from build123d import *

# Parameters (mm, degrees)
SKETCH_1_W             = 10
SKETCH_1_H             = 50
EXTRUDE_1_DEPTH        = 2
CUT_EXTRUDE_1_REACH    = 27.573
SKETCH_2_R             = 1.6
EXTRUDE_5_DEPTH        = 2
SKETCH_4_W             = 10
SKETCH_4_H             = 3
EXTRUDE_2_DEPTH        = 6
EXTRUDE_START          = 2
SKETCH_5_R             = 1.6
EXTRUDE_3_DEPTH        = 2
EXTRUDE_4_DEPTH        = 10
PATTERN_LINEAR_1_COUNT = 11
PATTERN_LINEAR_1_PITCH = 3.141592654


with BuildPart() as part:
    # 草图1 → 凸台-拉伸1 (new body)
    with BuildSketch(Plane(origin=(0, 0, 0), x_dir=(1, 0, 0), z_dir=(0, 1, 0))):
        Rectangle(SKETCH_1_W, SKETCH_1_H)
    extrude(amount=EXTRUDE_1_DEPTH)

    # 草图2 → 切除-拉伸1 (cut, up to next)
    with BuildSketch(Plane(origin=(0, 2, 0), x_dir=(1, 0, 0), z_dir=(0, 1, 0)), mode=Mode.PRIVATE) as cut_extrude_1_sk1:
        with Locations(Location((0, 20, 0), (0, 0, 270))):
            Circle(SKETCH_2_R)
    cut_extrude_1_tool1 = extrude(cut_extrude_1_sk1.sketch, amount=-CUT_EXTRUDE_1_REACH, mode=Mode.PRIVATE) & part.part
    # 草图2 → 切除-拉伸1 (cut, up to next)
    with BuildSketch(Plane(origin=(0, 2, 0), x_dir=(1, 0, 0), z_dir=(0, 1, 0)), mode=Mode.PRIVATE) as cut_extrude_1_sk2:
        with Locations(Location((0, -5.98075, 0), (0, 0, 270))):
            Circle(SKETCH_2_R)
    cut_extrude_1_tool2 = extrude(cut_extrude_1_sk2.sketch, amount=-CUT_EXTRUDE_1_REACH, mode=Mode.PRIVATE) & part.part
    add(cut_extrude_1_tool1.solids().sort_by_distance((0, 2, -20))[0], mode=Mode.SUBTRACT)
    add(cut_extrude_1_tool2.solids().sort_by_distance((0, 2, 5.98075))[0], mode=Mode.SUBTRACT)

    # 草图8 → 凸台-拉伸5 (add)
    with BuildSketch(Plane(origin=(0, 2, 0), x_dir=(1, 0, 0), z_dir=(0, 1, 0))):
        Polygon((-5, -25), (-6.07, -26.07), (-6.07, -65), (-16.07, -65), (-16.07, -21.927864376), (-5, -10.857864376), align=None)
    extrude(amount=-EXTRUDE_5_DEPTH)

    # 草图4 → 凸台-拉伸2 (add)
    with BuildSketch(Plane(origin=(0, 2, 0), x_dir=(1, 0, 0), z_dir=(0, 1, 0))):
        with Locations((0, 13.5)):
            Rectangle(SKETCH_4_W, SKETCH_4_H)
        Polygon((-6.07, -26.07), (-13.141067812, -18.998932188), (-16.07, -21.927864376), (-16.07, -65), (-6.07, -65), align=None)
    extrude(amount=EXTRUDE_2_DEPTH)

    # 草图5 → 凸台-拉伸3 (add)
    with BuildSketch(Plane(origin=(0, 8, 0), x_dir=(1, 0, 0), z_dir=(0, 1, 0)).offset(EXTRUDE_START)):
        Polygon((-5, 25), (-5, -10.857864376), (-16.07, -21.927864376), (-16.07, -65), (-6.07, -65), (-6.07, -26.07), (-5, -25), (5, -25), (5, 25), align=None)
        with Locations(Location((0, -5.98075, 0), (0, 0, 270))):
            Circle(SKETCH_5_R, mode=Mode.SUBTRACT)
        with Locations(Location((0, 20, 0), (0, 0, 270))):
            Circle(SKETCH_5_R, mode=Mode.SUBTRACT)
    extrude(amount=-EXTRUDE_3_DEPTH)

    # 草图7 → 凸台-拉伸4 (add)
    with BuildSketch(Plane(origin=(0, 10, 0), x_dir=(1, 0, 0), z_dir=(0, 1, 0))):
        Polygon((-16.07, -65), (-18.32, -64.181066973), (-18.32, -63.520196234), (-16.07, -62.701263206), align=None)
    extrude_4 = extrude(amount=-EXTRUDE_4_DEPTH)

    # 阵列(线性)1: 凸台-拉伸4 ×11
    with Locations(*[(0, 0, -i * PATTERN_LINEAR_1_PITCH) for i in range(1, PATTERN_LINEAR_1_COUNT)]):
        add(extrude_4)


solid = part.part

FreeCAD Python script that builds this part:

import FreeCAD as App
import Part
import Sketcher
from FreeCAD import Vector
Q = App.Units.Quantity


def add_polygon(sketch, points):
    """Adds a closed chain of lines whose ends are joined by coincident constraints."""
    first, n = sketch.GeometryCount, len(points)
    for a, b in zip(points, points[1:] + points[:1]):
        sketch.addGeometry(Part.LineSegment(App.Vector(*a, 0), App.Vector(*b, 0)), False)
    for i in range(n):
        sketch.addConstraint(Sketcher.Constraint("Coincident", first + i, 2, first + (i + 1) % n, 1))

doc = App.newDocument("Part")
body = doc.addObject("PartDesign::Body", "Body")

# Sketch on XZ plane
sketch1 = body.newObject("Sketcher::SketchObject", "Sketch")
sketch1.AttachmentSupport = (doc.getObject("XZ_Plane"), [""])
sketch1.MapMode = "FlatFace"
add_polygon(sketch1, [(-5, -25), (-5, 25), (5, 25), (5, -25)])  # lines 0-3
sketch1.addConstraint(Sketcher.Constraint("Vertical", 0))
sketch1.addConstraint(Sketcher.Constraint("Horizontal", 1))
sketch1.addConstraint(Sketcher.Constraint("Vertical", 2))
sketch1.addConstraint(Sketcher.Constraint("Horizontal", 3))
sketch1.addConstraint(Sketcher.Constraint("Symmetric", 0, 2, 2, 2, -1, 1))
sketch1.addConstraint(Sketcher.Constraint("DistanceX", 1, 1, 1, 2, Q("10 mm")))
sketch1.addConstraint(Sketcher.Constraint("DistanceY", 0, 1, 0, 2, Q("50 mm")))
pad1 = body.newObject("PartDesign::Pad", "Pad")
pad1.Profile = sketch1
pad1.Length = 2
pad1.Reversed = True

# Sketch on XZ plane
sketch2 = body.newObject("Sketcher::SketchObject", "Sketch001")
sketch2.AttachmentSupport = (doc.getObject("XZ_Plane"), [""])
sketch2.MapMode = "FlatFace"
sketch2.AttachmentOffset = App.Placement(Vector(0, 0, -2), App.Rotation())
sketch2.addGeometry(Part.Circle(Vector(0, -20, 0), Vector(0, 0, 1), 1.6), False)
sketch2.addConstraint(Sketcher.Constraint("PointOnObject", 0, 3, -2))
sketch2.addConstraint(Sketcher.Constraint("Diameter", 0, Q("3.2 mm")))
sketch2.addConstraint(Sketcher.Constraint("DistanceY", 0, 3, -1, 1, Q("20 mm")))
pocket1 = body.newObject("PartDesign::Pocket", "Pocket")
pocket1.Profile = sketch2
pocket1.Type = "UpToFirst"
pocket1.Reversed = True

# Sketch on XZ plane
sketch3 = body.newObject("Sketcher::SketchObject", "Sketch002")
sketch3.AttachmentSupport = (doc.getObject("XZ_Plane"), [""])
sketch3.MapMode = "FlatFace"
sketch3.AttachmentOffset = App.Placement(Vector(0, 0, -2), App.Rotation())
sketch3.addGeometry(Part.Circle(Vector(0, 6, 0), Vector(0, 0, 1), 1.6), False)
sketch3.addConstraint(Sketcher.Constraint("PointOnObject", 0, 3, -2))
sketch3.addConstraint(Sketcher.Constraint("Diameter", 0, Q("3.2 mm")))
sketch3.addConstraint(Sketcher.Constraint("DistanceY", -1, 1, 0, 3, Q("5.98075 mm")))
pocket2 = body.newObject("PartDesign::Pocket", "Pocket001")
pocket2.Profile = sketch3
pocket2.Type = "UpToFirst"
pocket2.Reversed = True

# Sketch on XZ plane
sketch4 = body.newObject("Sketcher::SketchObject", "Sketch003")
sketch4.AttachmentSupport = (doc.getObject("XZ_Plane"), [""])
sketch4.MapMode = "FlatFace"
sketch4.AttachmentOffset = App.Placement(Vector(0, 0, -2), App.Rotation())
add_polygon(sketch4, [(-6.1, 26.1), (-5, 25), (-5, 10.9), (-16.1, 21.9), (-16.1, 65), (-6.1, 65)])  # lines 0-5
sketch4.addConstraint(Sketcher.Constraint("Vertical", 1))
sketch4.addConstraint(Sketcher.Constraint("Vertical", 3))
sketch4.addConstraint(Sketcher.Constraint("Horizontal", 4))
sketch4.addConstraint(Sketcher.Constraint("Vertical", 5))
sketch4.addConstraint(Sketcher.Constraint("Parallel", 0, 2))
sketch4.addConstraint(Sketcher.Constraint("DistanceX", 4, 1, 4, 2, Q("10 mm")))
sketch4.addConstraint(Sketcher.Constraint("Angle", 0, Q("-45 deg")))
sketch4.addConstraint(Sketcher.Constraint("DistanceX", 0, 2, -1, 1, Q("5 mm")))
sketch4.addConstraint(Sketcher.Constraint("DistanceY", -1, 1, 0, 2, Q("25 mm")))
sketch4.addConstraint(Sketcher.Constraint("DistanceY", -1, 1, 3, 2, Q("65 mm")))
sketch4.addConstraint(Sketcher.Constraint("DistanceY", 5, 2, 5, 1, Q("38.93 mm")))
sketch4.addConstraint(Sketcher.Constraint("DistanceY", 1, 2, 1, 1, Q("14.142136 mm")))
pad2 = body.newObject("PartDesign::Pad", "Pad001")
pad2.Profile = sketch4
pad2.Length = 2

# Sketch on XZ plane
sketch5 = body.newObject("Sketcher::SketchObject", "Sketch004")
sketch5.AttachmentSupport = (doc.getObject("XZ_Plane"), [""])
sketch5.MapMode = "FlatFace"
sketch5.AttachmentOffset = App.Placement(Vector(0, 0, -2), App.Rotation())
add_polygon(sketch5, [(-5, -15), (-5, -12), (5, -12), (5, -15)])  # lines 0-3
add_polygon(sketch5, [(-6.1, 26.1), (-13.1, 19), (-16.1, 21.9), (-16.1, 65), (-6.1, 65)])  # lines 4-8
sketch5.addConstraint(Sketcher.Constraint("Vertical", 0))
sketch5.addConstraint(Sketcher.Constraint("Horizontal", 1))
sketch5.addConstraint(Sketcher.Constraint("Vertical", 2))
sketch5.addConstraint(Sketcher.Constraint("Horizontal", 3))
sketch5.addConstraint(Sketcher.Constraint("Vertical", 6))
sketch5.addConstraint(Sketcher.Constraint("Horizontal", 7))
sketch5.addConstraint(Sketcher.Constraint("Vertical", 8))
sketch5.addConstraint(Sketcher.Constraint("Perpendicular", 4, 5))
sketch5.addConstraint(Sketcher.Constraint("Equal", 3, 7))
sketch5.addConstraint(Sketcher.Constraint("DistanceX", 1, 1, 1, 2, Q("10 mm")))
sketch5.addConstraint(Sketcher.Constraint("DistanceY", 0, 1, 0, 2, Q("3 mm")))
sketch5.addConstraint(Sketcher.Constraint("Angle", 4, Q("-135 deg")))
sketch5.addConstraint(Sketcher.Constraint("Distance", 4, Q("10 mm")))
sketch5.addConstraint(Sketcher.Constraint("DistanceX", 0, 2, -1, 1, Q("5 mm")))
sketch5.addConstraint(Sketcher.Constraint("DistanceY", 0, 2, -1, 1, Q("12 mm")))
sketch5.addConstraint(Sketcher.Constraint("DistanceY", -1, 1, 6, 2, Q("65 mm")))
sketch5.addConstraint(Sketcher.Constraint("DistanceY", 8, 2, 8, 1, Q("38.93 mm")))
sketch5.addConstraint(Sketcher.Constraint("DistanceX", 5, 2, -1, 1, Q("16.07 mm")))
pad3 = body.newObject("PartDesign::Pad", "Pad002")
pad3.Profile = sketch5
pad3.Length = 6
pad3.Reversed = True

# Sketch on XZ plane
sketch6 = body.newObject("Sketcher::SketchObject", "Sketch005")
sketch6.AttachmentSupport = (doc.getObject("XZ_Plane"), [""])
sketch6.MapMode = "FlatFace"
sketch6.AttachmentOffset = App.Placement(Vector(0, 0, -10), App.Rotation())
add_polygon(sketch6, [(-5, -25), (-5, 10.9), (-16.1, 21.9), (-16.1, 65), (-6.1, 65), (-6.1, 26.1), (-5, 25), (5, 25), (5, -25)])  # lines 0-8
sketch6.addGeometry(Part.Circle(Vector(0, 6, 0), Vector(0, 0, 1), 1.6), False)  # 9
sketch6.addGeometry(Part.Circle(Vector(0, -20, 0), Vector(0, 0, 1), 1.6), False)  # 10
sketch6.addConstraint(Sketcher.Constraint("Vertical", 0))
sketch6.addConstraint(Sketcher.Constraint("Vertical", 2))
sketch6.addConstraint(Sketcher.Constraint("Horizontal", 3))
sketch6.addConstraint(Sketcher.Constraint("Vertical", 4))
sketch6.addConstraint(Sketcher.Constraint("Horizontal", 6))
sketch6.addConstraint(Sketcher.Constraint("Vertical", 7))
sketch6.addConstraint(Sketcher.Constraint("Horizontal", 8))
sketch6.addConstraint(Sketcher.Constraint("Equal", 9, 10))
sketch6.addConstraint(Sketcher.Constraint("Symmetric", 5, 2, 7, 2, -1, 1))
sketch6.addConstraint(Sketcher.Constraint("PointOnObject", 9, 3, -2))
sketch6.addConstraint(Sketcher.Constraint("PointOnObject", 10, 3, -2))
sketch6.addConstraint(Sketcher.Constraint("Parallel", 1, 5))
sketch6.addConstraint(Sketcher.Constraint("Vertical", 0, 2, 5, 2))
sketch6.addConstraint(Sketcher.Constraint("Equal", 3, 6))
sketch6.addConstraint(Sketcher.Constraint("Diameter", 9, Q("3.2 mm")))
sketch6.addConstraint(Sketcher.Constraint("DistanceX", 3, 1, 3, 2, Q("10 mm")))
sketch6.addConstraint(Sketcher.Constraint("DistanceY", 7, 2, 7, 1, Q("50 mm")))
sketch6.addConstraint(Sketcher.Constraint("Angle", 1, Q("135 deg")))
sketch6.addConstraint(Sketcher.Constraint("DistanceY", 10, 3, -1, 1, Q("20 mm")))
sketch6.addConstraint(Sketcher.Constraint("DistanceY", -1, 1, 2, 2, Q("65 mm")))
sketch6.addConstraint(Sketcher.Constraint("DistanceY", 4, 2, 4, 1, Q("38.93 mm")))
sketch6.addConstraint(Sketcher.Constraint("DistanceY", 0, 1, 0, 2, Q("35.857864 mm")))
sketch6.addConstraint(Sketcher.Constraint("DistanceY", -1, 1, 9, 3, Q("5.98075 mm")))
pad4 = body.newObject("PartDesign::Pad", "Pad003")
pad4.Profile = sketch6
pad4.Length = 2

# Sketch on XZ plane
sketch7 = body.newObject("Sketcher::SketchObject", "Sketch006")
sketch7.AttachmentSupport = (doc.getObject("XZ_Plane"), [""])
sketch7.MapMode = "FlatFace"
sketch7.AttachmentOffset = App.Placement(Vector(0, 0, -10), App.Rotation())
add_polygon(sketch7, [(-18.3, 64.2), (-16.1, 65), (-16.1, 62.7), (-18.3, 63.5)])  # lines 0-3
sketch7.addConstraint(Sketcher.Constraint("Vertical", 1))
sketch7.addConstraint(Sketcher.Constraint("Vertical", 3))
sketch7.addConstraint(Sketcher.Constraint("Equal", 0, 2))
sketch7.addConstraint(Sketcher.Constraint("Angle", 0, Q("20 deg")))
sketch7.addConstraint(Sketcher.Constraint("DistanceY", -1, 1, 0, 2, Q("65 mm")))
sketch7.addConstraint(Sketcher.Constraint("DistanceX", 0, 2, -1, 1, Q("16.07 mm")))
sketch7.addConstraint(Sketcher.Constraint("DistanceX", 2, 2, -1, 1, Q("18.32 mm")))
sketch7.addConstraint(Sketcher.Constraint("DistanceY", 3, 1, 3, 2, Q("0.660871 mm")))
pad5 = body.newObject("PartDesign::Pad", "Pad004")
pad5.Profile = sketch7
pad5.Length = 10
doc.recompute()

linearpattern = body.newObject("PartDesign::LinearPattern", "LinearPattern")
linearpattern.Originals = [pad5]
linearpattern.Direction = (doc.getObject("Z_Axis"), [""])
linearpattern.Mode = "offset"
linearpattern.Offset = 3.141593
linearpattern.Occurrences = 11
linearpattern.Reversed = True
body.Tip = linearpattern

doc.recompute()
